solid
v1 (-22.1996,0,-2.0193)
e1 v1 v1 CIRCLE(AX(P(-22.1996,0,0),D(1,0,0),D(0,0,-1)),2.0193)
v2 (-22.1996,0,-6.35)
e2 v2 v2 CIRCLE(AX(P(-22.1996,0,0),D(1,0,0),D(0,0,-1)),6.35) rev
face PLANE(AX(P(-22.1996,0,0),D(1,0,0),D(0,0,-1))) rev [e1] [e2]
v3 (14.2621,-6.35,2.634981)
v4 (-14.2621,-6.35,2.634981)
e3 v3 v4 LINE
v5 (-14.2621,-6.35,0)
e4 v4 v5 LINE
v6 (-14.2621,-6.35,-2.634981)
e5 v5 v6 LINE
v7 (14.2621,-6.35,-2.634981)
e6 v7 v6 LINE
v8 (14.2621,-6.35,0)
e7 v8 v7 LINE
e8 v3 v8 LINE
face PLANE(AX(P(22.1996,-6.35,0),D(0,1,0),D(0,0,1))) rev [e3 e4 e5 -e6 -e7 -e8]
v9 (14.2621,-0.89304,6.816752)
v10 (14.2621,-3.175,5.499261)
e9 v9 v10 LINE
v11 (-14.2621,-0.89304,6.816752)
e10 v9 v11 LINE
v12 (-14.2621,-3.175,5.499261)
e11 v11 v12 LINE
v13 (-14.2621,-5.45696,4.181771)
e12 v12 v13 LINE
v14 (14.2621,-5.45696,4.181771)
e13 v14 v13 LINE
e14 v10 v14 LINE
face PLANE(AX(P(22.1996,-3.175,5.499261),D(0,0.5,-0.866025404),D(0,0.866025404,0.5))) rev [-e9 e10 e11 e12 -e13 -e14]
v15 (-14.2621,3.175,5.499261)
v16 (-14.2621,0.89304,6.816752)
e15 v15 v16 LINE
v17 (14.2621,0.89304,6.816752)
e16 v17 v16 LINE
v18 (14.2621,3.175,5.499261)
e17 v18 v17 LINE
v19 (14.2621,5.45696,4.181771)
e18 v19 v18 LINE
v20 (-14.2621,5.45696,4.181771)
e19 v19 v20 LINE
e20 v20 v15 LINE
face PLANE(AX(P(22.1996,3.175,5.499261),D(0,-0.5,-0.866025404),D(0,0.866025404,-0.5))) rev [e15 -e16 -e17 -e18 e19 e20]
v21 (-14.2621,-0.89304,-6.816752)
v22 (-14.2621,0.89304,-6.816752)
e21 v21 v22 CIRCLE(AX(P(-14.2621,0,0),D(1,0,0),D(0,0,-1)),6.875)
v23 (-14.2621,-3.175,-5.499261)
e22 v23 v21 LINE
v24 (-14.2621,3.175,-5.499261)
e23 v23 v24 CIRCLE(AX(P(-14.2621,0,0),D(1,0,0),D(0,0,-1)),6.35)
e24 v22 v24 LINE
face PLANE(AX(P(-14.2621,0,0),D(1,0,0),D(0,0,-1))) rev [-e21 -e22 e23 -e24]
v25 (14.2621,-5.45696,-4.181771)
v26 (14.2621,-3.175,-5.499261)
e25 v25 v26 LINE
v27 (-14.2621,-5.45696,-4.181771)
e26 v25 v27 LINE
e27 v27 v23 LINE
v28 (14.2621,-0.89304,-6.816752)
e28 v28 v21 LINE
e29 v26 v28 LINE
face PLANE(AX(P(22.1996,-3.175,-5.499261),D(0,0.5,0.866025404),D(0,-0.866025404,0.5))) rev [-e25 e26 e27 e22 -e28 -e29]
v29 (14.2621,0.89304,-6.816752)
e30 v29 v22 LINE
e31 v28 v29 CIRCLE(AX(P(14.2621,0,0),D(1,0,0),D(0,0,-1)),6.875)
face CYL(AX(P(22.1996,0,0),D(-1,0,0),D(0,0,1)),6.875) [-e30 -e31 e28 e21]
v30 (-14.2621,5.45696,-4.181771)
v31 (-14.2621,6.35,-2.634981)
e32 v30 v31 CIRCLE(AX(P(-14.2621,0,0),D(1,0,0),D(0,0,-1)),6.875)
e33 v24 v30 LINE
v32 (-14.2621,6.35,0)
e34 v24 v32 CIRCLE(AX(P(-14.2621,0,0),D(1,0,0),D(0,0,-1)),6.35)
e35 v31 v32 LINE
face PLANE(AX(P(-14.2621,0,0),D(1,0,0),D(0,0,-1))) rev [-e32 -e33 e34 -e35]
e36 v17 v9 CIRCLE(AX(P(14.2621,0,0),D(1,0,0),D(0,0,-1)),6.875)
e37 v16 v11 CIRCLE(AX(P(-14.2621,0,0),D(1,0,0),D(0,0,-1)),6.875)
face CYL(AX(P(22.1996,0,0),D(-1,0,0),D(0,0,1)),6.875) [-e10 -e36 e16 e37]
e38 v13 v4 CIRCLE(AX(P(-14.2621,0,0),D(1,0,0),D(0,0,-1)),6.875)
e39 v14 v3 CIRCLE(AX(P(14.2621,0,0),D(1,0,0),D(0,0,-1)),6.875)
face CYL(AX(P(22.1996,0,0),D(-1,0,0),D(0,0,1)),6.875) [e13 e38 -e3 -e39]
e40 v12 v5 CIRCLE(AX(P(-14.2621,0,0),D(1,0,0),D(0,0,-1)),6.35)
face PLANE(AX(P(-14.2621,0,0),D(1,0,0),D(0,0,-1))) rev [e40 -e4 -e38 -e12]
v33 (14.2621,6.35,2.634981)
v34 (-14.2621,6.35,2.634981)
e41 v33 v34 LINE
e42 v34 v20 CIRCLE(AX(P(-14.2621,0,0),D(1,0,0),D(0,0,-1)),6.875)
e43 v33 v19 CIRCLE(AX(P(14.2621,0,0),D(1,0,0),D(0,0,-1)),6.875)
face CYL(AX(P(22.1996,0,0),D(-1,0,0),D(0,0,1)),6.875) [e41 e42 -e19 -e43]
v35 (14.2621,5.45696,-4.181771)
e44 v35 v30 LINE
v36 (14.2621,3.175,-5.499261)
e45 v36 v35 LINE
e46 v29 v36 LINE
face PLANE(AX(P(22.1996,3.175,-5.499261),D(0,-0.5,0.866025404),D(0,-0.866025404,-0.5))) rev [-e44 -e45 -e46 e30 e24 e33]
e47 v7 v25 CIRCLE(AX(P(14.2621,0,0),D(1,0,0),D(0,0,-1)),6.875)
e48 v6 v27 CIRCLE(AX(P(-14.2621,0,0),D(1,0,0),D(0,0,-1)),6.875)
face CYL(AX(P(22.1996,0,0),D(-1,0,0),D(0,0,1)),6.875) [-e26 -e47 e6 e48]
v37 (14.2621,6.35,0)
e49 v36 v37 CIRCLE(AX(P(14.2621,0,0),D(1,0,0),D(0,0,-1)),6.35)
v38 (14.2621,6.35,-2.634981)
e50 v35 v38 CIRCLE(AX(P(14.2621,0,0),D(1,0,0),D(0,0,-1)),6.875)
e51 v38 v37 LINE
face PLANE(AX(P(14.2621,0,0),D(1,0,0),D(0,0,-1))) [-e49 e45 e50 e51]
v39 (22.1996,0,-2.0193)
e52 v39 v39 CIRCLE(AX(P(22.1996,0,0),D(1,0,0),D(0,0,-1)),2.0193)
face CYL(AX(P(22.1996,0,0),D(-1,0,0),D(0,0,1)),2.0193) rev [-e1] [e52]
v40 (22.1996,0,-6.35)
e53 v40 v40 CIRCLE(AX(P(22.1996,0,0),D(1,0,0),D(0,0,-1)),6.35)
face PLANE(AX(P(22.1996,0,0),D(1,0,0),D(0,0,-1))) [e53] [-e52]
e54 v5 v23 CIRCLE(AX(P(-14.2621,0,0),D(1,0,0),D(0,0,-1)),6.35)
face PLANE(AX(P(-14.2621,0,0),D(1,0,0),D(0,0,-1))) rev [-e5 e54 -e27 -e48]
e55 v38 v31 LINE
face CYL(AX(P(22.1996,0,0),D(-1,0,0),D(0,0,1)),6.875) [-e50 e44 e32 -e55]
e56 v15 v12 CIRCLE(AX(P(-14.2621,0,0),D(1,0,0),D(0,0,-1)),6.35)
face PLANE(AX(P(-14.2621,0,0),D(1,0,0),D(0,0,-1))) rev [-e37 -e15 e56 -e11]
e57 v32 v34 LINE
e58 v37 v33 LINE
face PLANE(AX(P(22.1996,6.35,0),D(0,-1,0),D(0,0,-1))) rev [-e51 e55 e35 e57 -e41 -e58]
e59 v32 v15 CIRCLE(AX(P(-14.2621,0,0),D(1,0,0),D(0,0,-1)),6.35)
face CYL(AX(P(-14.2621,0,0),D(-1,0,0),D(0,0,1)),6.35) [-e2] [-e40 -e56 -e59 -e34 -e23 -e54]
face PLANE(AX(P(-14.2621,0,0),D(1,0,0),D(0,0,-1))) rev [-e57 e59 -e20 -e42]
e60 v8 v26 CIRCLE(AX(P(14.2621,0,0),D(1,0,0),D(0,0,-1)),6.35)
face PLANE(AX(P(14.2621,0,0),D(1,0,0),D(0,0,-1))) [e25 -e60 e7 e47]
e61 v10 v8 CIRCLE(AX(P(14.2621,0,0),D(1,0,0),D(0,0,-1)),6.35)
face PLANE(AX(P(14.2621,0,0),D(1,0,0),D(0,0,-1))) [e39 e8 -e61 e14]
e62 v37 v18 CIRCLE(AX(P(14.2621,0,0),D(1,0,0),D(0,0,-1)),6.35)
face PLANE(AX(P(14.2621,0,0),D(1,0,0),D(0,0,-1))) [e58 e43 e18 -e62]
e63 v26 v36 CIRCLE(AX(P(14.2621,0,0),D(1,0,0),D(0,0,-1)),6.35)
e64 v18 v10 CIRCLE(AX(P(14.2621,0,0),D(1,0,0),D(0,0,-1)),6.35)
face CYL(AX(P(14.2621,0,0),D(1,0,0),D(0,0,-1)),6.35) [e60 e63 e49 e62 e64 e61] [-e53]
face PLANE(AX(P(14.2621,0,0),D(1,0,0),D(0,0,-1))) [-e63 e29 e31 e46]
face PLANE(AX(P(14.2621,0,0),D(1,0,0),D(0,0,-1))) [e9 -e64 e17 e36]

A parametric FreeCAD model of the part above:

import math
import FreeCAD as App
import Part
import Sketcher
Q = App.Units.Quantity

doc = App.newDocument("Part")
body = doc.addObject("PartDesign::Body", "Body")

# Sketch on YZ plane
sketch1 = doc.addObject("Sketcher::SketchObject", "Sketch")
body.addObject(sketch1)
sketch1.AttachmentSupport = (doc.YZ_Plane, [""])
sketch1.MapMode = "FlatFace"
sketch1.addGeometry([
    Part.ArcOfCircle(Part.Circle(App.Vector(0, 0, 0), App.Vector(0, 0, 1), 6.9), math.radians(-37.46), math.radians(-22.54)),  # 0
    Part.LineSegment(App.Vector(6.3, -2.6, 0), App.Vector(6.3, 2.6, 0)),  # 1
    Part.ArcOfCircle(Part.Circle(App.Vector(0, 0, 0), App.Vector(0, 0, 1), 6.9), math.radians(22.54), math.radians(37.46)),  # 2
    Part.LineSegment(App.Vector(5.5, 4.2, 0), App.Vector(0.9, 6.8, 0)),  # 3
    Part.ArcOfCircle(Part.Circle(App.Vector(0, 0, 0), App.Vector(0, 0, 1), 6.9), math.radians(82.54), math.radians(97.46)),  # 4
    Part.LineSegment(App.Vector(-0.9, 6.8, 0), App.Vector(-5.5, 4.2, 0)),  # 5
    Part.ArcOfCircle(Part.Circle(App.Vector(0, 0, 0), App.Vector(0, 0, 1), 6.9), math.radians(142.54), math.radians(157.46)),  # 6
    Part.LineSegment(App.Vector(-6.3, 2.6, 0), App.Vector(-6.3, -2.6, 0)),  # 7
    Part.ArcOfCircle(Part.Circle(App.Vector(0, 0, 0), App.Vector(0, 0, 1), 6.9), math.radians(-157.46), math.radians(-142.54)),  # 8
    Part.LineSegment(App.Vector(-5.5, -4.2, 0), App.Vector(-0.9, -6.8, 0)),  # 9
    Part.ArcOfCircle(Part.Circle(App.Vector(0, 0, 0), App.Vector(0, 0, 1), 6.9), math.radians(-97.46), math.radians(-90)),  # 10
    Part.ArcOfCircle(Part.Circle(App.Vector(0, 0, 0), App.Vector(0, 0, 1), 6.9), math.radians(-90), math.radians(-82.54)),  # 11
    Part.LineSegment(App.Vector(0.9, -6.8, 0), App.Vector(5.5, -4.2, 0)),  # 12
    Part.Circle(App.Vector(0, 0, 0), App.Vector(0, 0, 1), 2),  # 13
], False)
sketch1.addConstraint([
    Sketcher.Constraint("Coincident", 0, 2, 1, 1),
    Sketcher.Constraint("Coincident", 1, 2, 2, 1),
    Sketcher.Constraint("Coincident", 2, 2, 3, 1),
    Sketcher.Constraint("Coincident", 3, 2, 4, 1),
    Sketcher.Constraint("Coincident", 4, 2, 5, 1),
    Sketcher.Constraint("Coincident", 5, 2, 6, 1),
    Sketcher.Constraint("Coincident", 6, 2, 7, 1),
    Sketcher.Constraint("Coincident", 7, 2, 8, 1),
    Sketcher.Constraint("Coincident", 8, 2, 9, 1),
    Sketcher.Constraint("Coincident", 9, 2, 10, 1),
    Sketcher.Constraint("Tangent", 10, 2, 11, 1),
    Sketcher.Constraint("Coincident", 11, 2, 12, 1),
    Sketcher.Constraint("Coincident", 12, 2, 0, 1),
    Sketcher.Constraint("Vertical", 1),
    Sketcher.Constraint("Vertical", 7),
    Sketcher.Constraint("Coincident", 0, 3, -1, 1),
    Sketcher.Constraint("Coincident", 2, 3, -1, 1),
    Sketcher.Constraint("Coincident", 4, 3, -1, 1),
    Sketcher.Constraint("Coincident", 6, 3, -1, 1),
    Sketcher.Constraint("Coincident", 8, 3, -1, 1),
    Sketcher.Constraint("Coincident", 10, 3, -1, 1),
    Sketcher.Constraint("Coincident", 13, 3, -1, 1),
    Sketcher.Constraint("Equal", 0, 2),
    Sketcher.Constraint("Equal", 2, 4),
    Sketcher.Constraint("Equal", 4, 6),
    Sketcher.Constraint("Equal", 6, 8),
    Sketcher.Constraint("Equal", 8, 10),
    Sketcher.Constraint("Equal", 10, 11),
    Sketcher.Constraint("PointOnObject", 10, 2, -2),
    Sketcher.Constraint("Parallel", 3, 9),
    Sketcher.Constraint("Parallel", 5, 12),
    Sketcher.Constraint("Horizontal", 3, 2, 4, 2),
    Sketcher.Constraint("Horizontal", 2, 2, 5, 2),
    Sketcher.Constraint("Horizontal", 1, 2, 6, 2),
    Sketcher.Constraint("Horizontal", 9, 2, 11, 2),
    Sketcher.Constraint("Vertical", 5, 2, 8, 2),
    Sketcher.Constraint("Diameter", 13, Q("0.159 in")),
    Sketcher.Constraint("Angle", 3, Q("150 deg")),
    Sketcher.Constraint("DistanceX", -1, 1, 0, 2, Q("0.25 in")),
    Sketcher.Constraint("Radius", 0, Q("6.875 mm")),
    Sketcher.Constraint("Distance", 3, Q("5.269962 mm")),
])
pad1 = doc.addObject("PartDesign::Pad", "Pad")
body.addObject(pad1)
pad1.Profile = sketch1
pad1.Length = Q("1.748 in")
pad1.Midplane = True

# Sketch on YZ plane
sketch2 = doc.addObject("Sketcher::SketchObject", "Sketch001")
body.addObject(sketch2)
sketch2.AttachmentSupport = (doc.YZ_Plane, [""])
sketch2.MapMode = "FlatFace"
sketch2.AttachmentOffset = App.Placement(App.Vector(0, 0, 0.874 * 25.4), App.Rotation())
sketch2.addGeometry(Part.Circle(App.Vector(0, 0, 0), App.Vector(0, 0, 1), 2), False)
sketch2.addConstraint([
    Sketcher.Constraint("Coincident", 0, 3, -1, 1),
    Sketcher.Constraint("Diameter", 0, Q("0.159 in")),
])
doc.recompute()
hole = doc.addObject("PartDesign::Hole", "Hole")
body.addObject(hole)
hole.Profile = sketch2
hole.ThreadType = "None"
hole.Diameter = Q("0.159 in")
hole.DepthType = "Dimension"
hole.Depth = Q("0.6436 in")
hole.DrillPoint = "Angled"
hole.DrillPointAngle = 118

# Sketch on YZ plane
sketch3 = doc.addObject("Sketcher::SketchObject", "Sketch002")
body.addObject(sketch3)
sketch3.AttachmentSupport = (doc.YZ_Plane, [""])
sketch3.MapMode = "FlatFace"
sketch3.AttachmentOffset = App.Placement(App.Vector(0, 0, -0.874 * 25.4), App.Rotation())
sketch3.addGeometry(Part.Circle(App.Vector(0, 0, 0), App.Vector(0, 0, 1), 2), False)
sketch3.addConstraint([
    Sketcher.Constraint("Coincident", 0, 3, -1, 1),
    Sketcher.Constraint("Diameter", 0, Q("0.159 in")),
])
doc.recompute()
hole2 = doc.addObject("PartDesign::Hole", "Hole001")
body.addObject(hole2)
hole2.Profile = sketch3
hole2.ThreadType = "None"
hole2.Diameter = Q("0.159 in")
hole2.DepthType = "Dimension"
hole2.Depth = Q("0.6436 in")
hole2.DrillPoint = "Angled"
hole2.DrillPointAngle = 118

# Sketch on YZ plane
sketch4 = doc.addObject("Sketcher::SketchObject", "Sketch003")
body.addObject(sketch4)
sketch4.AttachmentSupport = (doc.YZ_Plane, [""])
sketch4.MapMode = "FlatFace"
sketch4.AttachmentOffset = App.Placement(App.Vector(0, 0, 0.874 * 25.4), App.Rotation())
sketch4.addGeometry([
    Part.Circle(App.Vector(0, 0, 0), App.Vector(0, 0, 1), 9),
    Part.Circle(App.Vector(0, 0, 0), App.Vector(0, 0, 1), 6),
], False)
sketch4.addConstraint([
    Sketcher.Constraint("Coincident", 0, 3, -1, 1),
    Sketcher.Constraint("Coincident", 1, 3, -1, 1),
    Sketcher.Constraint("Diameter", 0, Q("0.7 in")),
    Sketcher.Constraint("Diameter", 1, Q("0.5 in")),
])
pocket1 = doc.addObject("PartDesign::Pocket", "Pocket")
body.addObject(pocket1)
pocket1.Profile = sketch4
pocket1.Length = Q("0.3125 in")
doc.recompute()

mirrored = doc.addObject("PartDesign::Mirrored", "Mirrored")
body.addObject(mirrored)
mirrored.Originals = [pocket1]
mirrored.MirrorPlane = (doc.YZ_Plane, [""])
body.Tip = mirrored

doc.recompute()
